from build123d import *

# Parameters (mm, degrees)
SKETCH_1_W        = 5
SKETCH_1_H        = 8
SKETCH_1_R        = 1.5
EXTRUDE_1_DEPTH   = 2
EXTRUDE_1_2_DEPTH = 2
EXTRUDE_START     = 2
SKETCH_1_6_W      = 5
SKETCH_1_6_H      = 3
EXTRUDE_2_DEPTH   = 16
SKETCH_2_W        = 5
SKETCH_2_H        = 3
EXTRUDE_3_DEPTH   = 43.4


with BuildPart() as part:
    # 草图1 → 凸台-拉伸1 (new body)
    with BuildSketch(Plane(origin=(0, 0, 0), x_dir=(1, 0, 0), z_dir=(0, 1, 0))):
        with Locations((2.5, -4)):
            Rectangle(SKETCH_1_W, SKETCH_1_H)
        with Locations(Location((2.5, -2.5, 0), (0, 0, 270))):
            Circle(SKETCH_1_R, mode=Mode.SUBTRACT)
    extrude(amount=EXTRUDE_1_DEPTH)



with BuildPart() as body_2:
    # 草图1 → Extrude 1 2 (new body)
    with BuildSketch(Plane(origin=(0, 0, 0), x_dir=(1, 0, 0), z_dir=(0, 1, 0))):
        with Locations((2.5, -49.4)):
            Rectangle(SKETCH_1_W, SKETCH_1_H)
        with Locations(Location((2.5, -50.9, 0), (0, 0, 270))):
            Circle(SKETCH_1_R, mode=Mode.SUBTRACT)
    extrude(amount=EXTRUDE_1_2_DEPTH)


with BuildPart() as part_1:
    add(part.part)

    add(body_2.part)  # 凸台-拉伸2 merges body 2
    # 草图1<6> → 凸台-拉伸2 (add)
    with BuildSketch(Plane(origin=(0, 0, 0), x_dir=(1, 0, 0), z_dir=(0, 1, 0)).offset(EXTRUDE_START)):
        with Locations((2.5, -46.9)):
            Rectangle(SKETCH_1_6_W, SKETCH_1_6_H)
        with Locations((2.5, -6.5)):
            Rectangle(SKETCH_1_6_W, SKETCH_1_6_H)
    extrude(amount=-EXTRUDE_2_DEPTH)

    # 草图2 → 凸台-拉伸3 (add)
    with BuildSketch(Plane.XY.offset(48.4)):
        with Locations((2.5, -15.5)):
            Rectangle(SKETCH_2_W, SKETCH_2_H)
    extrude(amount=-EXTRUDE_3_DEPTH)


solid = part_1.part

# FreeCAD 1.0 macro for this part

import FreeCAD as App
import Part
import Sketcher

V = App.Vector

doc = App.newDocument("Part")
body = doc.addObject("PartDesign::Body", "Body")

sketch1 = body.newObject("Sketcher::SketchObject", "Sketch")
sketch1.AttachmentSupport = (doc.getObject("XZ_Plane"), [""])
sketch1.MapMode = "FlatFace"
sketch1.addGeometry([
    Part.LineSegment(V(0, 0, 0), V(0, 8, 0)),
    Part.LineSegment(V(0, 8, 0), V(5, 8, 0)),
    Part.LineSegment(V(5, 8, 0), V(5, 0, 0)),
    Part.LineSegment(V(5, 0, 0), V(0, 0, 0)),
    Part.Circle(V(2.5, 2.5, 0), V(0, 0, 1), 1.5),
], False)
sketch1.addConstraint([
    Sketcher.Constraint("Coincident", 0, 2, 1, 1),
    Sketcher.Constraint("Coincident", 1, 2, 2, 1),
    Sketcher.Constraint("Coincident", 2, 2, 3, 1),
    Sketcher.Constraint("Coincident", 3, 2, 0, 1),
    Sketcher.Constraint("Vertical", 0),
    Sketcher.Constraint("Horizontal", 1),
    Sketcher.Constraint("Vertical", 2),
    Sketcher.Constraint("Horizontal", 3),
    Sketcher.Constraint("Coincident", 3, 2, -1, 1),
    Sketcher.Constraint("Diameter", 4, 3.0),
    Sketcher.Constraint("DistanceX", 1, 1, 1, 2, 5.0),
    Sketcher.Constraint("DistanceY", 0, 1, 0, 2, 8.0),
    Sketcher.Constraint("DistanceX", -1, 1, 4, 3, 2.5),
    Sketcher.Constraint("DistanceY", -1, 1, 4, 3, 2.5),
])
pad1 = body.newObject("PartDesign::Pad", "Pad")
pad1.Profile = sketch1
pad1.Length = 2
pad1.Reversed = True
body2 = doc.addObject("PartDesign::Body", "Body001")

sketch2 = body2.newObject("Sketcher::SketchObject", "Sketch001")
sketch2.AttachmentSupport = (doc.getObject("XZ_Plane001"), [""])
sketch2.MapMode = "FlatFace"
sketch2.addGeometry([
    Part.LineSegment(V(0, 45.4, 0), V(0, 53.4, 0)),
    Part.LineSegment(V(0, 53.4, 0), V(5, 53.4, 0)),
    Part.LineSegment(V(5, 53.4, 0), V(5, 45.4, 0)),
    Part.LineSegment(V(5, 45.4, 0), V(0, 45.4, 0)),
    Part.Circle(V(2.5, 50.9, 0), V(0, 0, 1), 1.5),
], False)
sketch2.addConstraint([
    Sketcher.Constraint("Coincident", 0, 2, 1, 1),
    Sketcher.Constraint("Coincident", 1, 2, 2, 1),
    Sketcher.Constraint("Coincident", 2, 2, 3, 1),
    Sketcher.Constraint("Coincident", 3, 2, 0, 1),
    Sketcher.Constraint("Vertical", 0),
    Sketcher.Constraint("Horizontal", 1),
    Sketcher.Constraint("Vertical", 2),
    Sketcher.Constraint("Horizontal", 3),
    Sketcher.Constraint("PointOnObject", 0, 2, -2),
    Sketcher.Constraint("Diameter", 4, 3.0),
    Sketcher.Constraint("DistanceX", 1, 1, 1, 2, 5.0),
    Sketcher.Constraint("DistanceY", 0, 1, 0, 2, 8.0),
    Sketcher.Constraint("DistanceX", -1, 1, 4, 3, 2.5),
    Sketcher.Constraint("DistanceY", -1, 1, 4, 3, 50.9),
    Sketcher.Constraint("DistanceY", -1, 1, 0, 2, 53.4),
])
pad2 = body2.newObject("PartDesign::Pad", "Pad001")
pad2.Profile = sketch2
pad2.Length = 2
pad2.Reversed = True
body.AllowCompound = True
doc.recompute()

boolean = body.newObject("PartDesign::Boolean", "Boolean")
boolean.Type = "Fuse"
boolean.addObjects([body2])

sketch3 = body.newObject("Sketcher::SketchObject", "Sketch002")
sketch3.AttachmentSupport = (doc.getObject("XZ_Plane"), [""])
sketch3.MapMode = "FlatFace"
sketch3.AttachmentOffset = App.Placement(V(0, 0, -2), App.Rotation())
sketch3.addGeometry([
    Part.LineSegment(V(0, 45.4, 0), V(0, 48.4, 0)),
    Part.LineSegment(V(0, 48.4, 0), V(5, 48.4, 0)),
    Part.LineSegment(V(5, 48.4, 0), V(5, 45.4, 0)),
    Part.LineSegment(V(5, 45.4, 0), V(0, 45.4, 0)),
    Part.LineSegment(V(0, 5, 0), V(0, 8, 0)),
    Part.LineSegment(V(0, 8, 0), V(5, 8, 0)),
    Part.LineSegment(V(5, 8, 0), V(5, 5, 0)),
    Part.LineSegment(V(5, 5, 0), V(0, 5, 0)),
], False)
sketch3.addConstraint([
    Sketcher.Constraint("Coincident", 0, 2, 1, 1),
    Sketcher.Constraint("Coincident", 1, 2, 2, 1),
    Sketcher.Constraint("Coincident", 2, 2, 3, 1),
    Sketcher.Constraint("Coincident", 3, 2, 0, 1),
    Sketcher.Constraint("Coincident", 4, 2, 5, 1),
    Sketcher.Constraint("Coincident", 5, 2, 6, 1),
    Sketcher.Constraint("Coincident", 6, 2, 7, 1),
    Sketcher.Constraint("Coincident", 7, 2, 4, 1),
    Sketcher.Constraint("Vertical", 0),
    Sketcher.Constraint("Horizontal", 1),
    Sketcher.Constraint("Vertical", 2),
    Sketcher.Constraint("Horizontal", 3),
    Sketcher.Constraint("Vertical", 4),
    Sketcher.Constraint("Horizontal", 5),
    Sketcher.Constraint("Vertical", 6),
    Sketcher.Constraint("Horizontal", 7),
    Sketcher.Constraint("PointOnObject", 0, 2, -2),
    Sketcher.Constraint("PointOnObject", 4, 2, -2),
    Sketcher.Constraint("Vertical", 2, 2, 5, 2),
    Sketcher.Constraint("Equal", 2, 4),
    Sketcher.Constraint("DistanceX", 1, 1, 1, 2, 5.0),
    Sketcher.Constraint("DistanceY", 0, 1, 0, 2, 3.0),
    Sketcher.Constraint("DistanceY", -1, 1, 4, 2, 8.0),
    Sketcher.Constraint("DistanceY", -1, 1, 0, 2, 48.4),
])
pad3 = body.newObject("PartDesign::Pad", "Pad002")
pad3.Profile = sketch3
pad3.Length = 16

sketch4 = body.newObject("Sketcher::SketchObject", "Sketch003")
sketch4.AttachmentSupport = (doc.getObject("XY_Plane"), [""])
sketch4.MapMode = "FlatFace"
sketch4.AttachmentOffset = App.Placement(V(0, 0, 48.4), App.Rotation())
sketch4.addGeometry([
    Part.LineSegment(V(0, -14, 0), V(0, -17, 0)),
    Part.LineSegment(V(0, -17, 0), V(5, -17, 0)),
    Part.LineSegment(V(5, -17, 0), V(5, -14, 0)),
    Part.LineSegment(V(5, -14, 0), V(0, -14, 0)),
], False)
sketch4.addConstraint([
    Sketcher.Constraint("Coincident", 0, 2, 1, 1),
    Sketcher.Constraint("Coincident", 1, 2, 2, 1),
    Sketcher.Constraint("Coincident", 2, 2, 3, 1),
    Sketcher.Constraint("Coincident", 3, 2, 0, 1),
    Sketcher.Constraint("Vertical", 0),
    Sketcher.Constraint("Horizontal", 1),
    Sketcher.Constraint("Vertical", 2),
    Sketcher.Constraint("Horizontal", 3),
    Sketcher.Constraint("PointOnObject", 0, 2, -2),
    Sketcher.Constraint("DistanceX", 1, 1, 1, 2, 5.0),
    Sketcher.Constraint("DistanceY", 0, 2, 0, 1, 3.0),
    Sketcher.Constraint("DistanceY", 0, 2, -1, 1, 17.0),
])
pad4 = body.newObject("PartDesign::Pad", "Pad003")
pad4.Profile = sketch4
pad4.Length = 43.4
pad4.Reversed = True

doc.recompute()
